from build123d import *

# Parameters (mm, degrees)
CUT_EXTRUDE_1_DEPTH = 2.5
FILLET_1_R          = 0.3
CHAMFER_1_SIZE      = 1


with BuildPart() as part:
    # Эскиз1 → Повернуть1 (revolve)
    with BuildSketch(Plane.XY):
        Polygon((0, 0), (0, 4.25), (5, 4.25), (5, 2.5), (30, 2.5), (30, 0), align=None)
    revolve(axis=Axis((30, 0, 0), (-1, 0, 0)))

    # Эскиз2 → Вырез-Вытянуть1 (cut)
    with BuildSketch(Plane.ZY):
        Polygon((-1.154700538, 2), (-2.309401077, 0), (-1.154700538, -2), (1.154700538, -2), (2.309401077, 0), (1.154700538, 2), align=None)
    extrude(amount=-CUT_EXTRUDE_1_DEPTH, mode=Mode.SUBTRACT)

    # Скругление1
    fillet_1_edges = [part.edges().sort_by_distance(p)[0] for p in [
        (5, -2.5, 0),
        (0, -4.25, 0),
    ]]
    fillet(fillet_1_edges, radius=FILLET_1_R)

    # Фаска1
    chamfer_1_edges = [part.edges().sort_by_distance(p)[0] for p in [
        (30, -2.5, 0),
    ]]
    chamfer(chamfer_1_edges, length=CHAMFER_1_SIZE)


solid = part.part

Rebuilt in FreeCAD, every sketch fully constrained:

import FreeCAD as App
import Part
import Sketcher

V = App.Vector
Q = App.Units.Quantity


def edges_at(feature, points):
    """Names of the edges that pass closest to the given points."""
    edges = feature.Shape.Edges
    near = lambda p: min(range(len(edges)), key=lambda i: edges[i].distToShape(Part.Vertex(*p))[0])
    return sorted({f"Edge{near(p) + 1}" for p in points})


def add_polygon(sketch, points):
    """Adds a closed chain of lines whose ends are joined by coincident constraints."""
    first, n = sketch.GeometryCount, len(points)
    for a, b in zip(points, points[1:] + points[:1]):
        sketch.addGeometry(Part.LineSegment(App.Vector(*a, 0), App.Vector(*b, 0)), False)
    for i in range(n):
        sketch.addConstraint(Sketcher.Constraint("Coincident", first + i, 2, first + (i + 1) % n, 1))

doc = App.newDocument("Part")
body = doc.addObject("PartDesign::Body", "Body")

# Sketch on XY plane
sketch1 = body.newObject("Sketcher::SketchObject", "Sketch")
sketch1.AttachmentSupport = (doc.getObject("XY_Plane"), [""])
sketch1.MapMode = "FlatFace"
add_polygon(sketch1, [(0, 4.2), (0, 0), (30, 0), (30, 2.5), (5, 2.5), (5, 4.2)])  # lines 0-5
sketch1.addConstraint([
    Sketcher.Constraint("Vertical", 0),
    Sketcher.Constraint("Horizontal", 1),
    Sketcher.Constraint("Vertical", 2),
    Sketcher.Constraint("Horizontal", 3),
    Sketcher.Constraint("Vertical", 4),
    Sketcher.Constraint("Horizontal", 5),
    Sketcher.Constraint("Coincident", 0, 2, -1, 1),
    Sketcher.Constraint("DistanceX", 1, 1, 1, 2, 30.0),
    Sketcher.Constraint("DistanceX", 3, 2, 3, 1, 25.0),
    Sketcher.Constraint("DistanceY", 2, 1, 2, 2, 2.5),
    Sketcher.Constraint("DistanceY", 0, 2, 0, 1, 4.25),
])
revolution = body.newObject("PartDesign::Revolution", "Revolution")
revolution.Profile = sketch1
revolution.ReferenceAxis = (sketch1, ["H_Axis"])
revolution.Angle = 360

# Sketch on YZ plane
sketch2 = body.newObject("Sketcher::SketchObject", "Sketch001")
sketch2.AttachmentSupport = (doc.getObject("YZ_Plane"), [""])
sketch2.MapMode = "FlatFace"
add_polygon(sketch2, [(2, -1.2), (0, -2.3), (-2, -1.2), (-2, 1.2), (0, 2.3), (2, 1.2)])  # lines 0-5
sketch2.addConstraint([
    Sketcher.Constraint("Vertical", 2),
    Sketcher.Constraint("Vertical", 5),
    Sketcher.Constraint("Symmetric", 0, 2, 3, 2, -1, 1),
    Sketcher.Constraint("Symmetric", 1, 2, 4, 2, -1, 1),
    Sketcher.Constraint("PointOnObject", 0, 2, -2),
    Sketcher.Constraint("Parallel", 0, 3),
    Sketcher.Constraint("Horizontal", 2, 2, 4, 2),
    Sketcher.Constraint("Angle", 0, Q("-150 deg")),
    Sketcher.Constraint("DistanceX", 1, 2, -1, 1, 2.0),
    Sketcher.Constraint("DistanceY", 2, 1, 2, 2, 2.309401),
])
pocket1 = body.newObject("PartDesign::Pocket", "Pocket")
pocket1.Profile = sketch2
pocket1.Length = 2.5
pocket1.Reversed = True
doc.recompute()

fillet = body.newObject("PartDesign::Fillet", "Fillet")
fillet.Base = (pocket1, edges_at(pocket1, [(5, -2.5, 0), (0, -4.25, 0)]))
fillet.Radius = 0.3
doc.recompute()

chamfer = body.newObject("PartDesign::Chamfer", "Chamfer")
chamfer.Base = (fillet, edges_at(fillet, [(30, -2.5, 0)]))
chamfer.Size = 1

doc.recompute()
